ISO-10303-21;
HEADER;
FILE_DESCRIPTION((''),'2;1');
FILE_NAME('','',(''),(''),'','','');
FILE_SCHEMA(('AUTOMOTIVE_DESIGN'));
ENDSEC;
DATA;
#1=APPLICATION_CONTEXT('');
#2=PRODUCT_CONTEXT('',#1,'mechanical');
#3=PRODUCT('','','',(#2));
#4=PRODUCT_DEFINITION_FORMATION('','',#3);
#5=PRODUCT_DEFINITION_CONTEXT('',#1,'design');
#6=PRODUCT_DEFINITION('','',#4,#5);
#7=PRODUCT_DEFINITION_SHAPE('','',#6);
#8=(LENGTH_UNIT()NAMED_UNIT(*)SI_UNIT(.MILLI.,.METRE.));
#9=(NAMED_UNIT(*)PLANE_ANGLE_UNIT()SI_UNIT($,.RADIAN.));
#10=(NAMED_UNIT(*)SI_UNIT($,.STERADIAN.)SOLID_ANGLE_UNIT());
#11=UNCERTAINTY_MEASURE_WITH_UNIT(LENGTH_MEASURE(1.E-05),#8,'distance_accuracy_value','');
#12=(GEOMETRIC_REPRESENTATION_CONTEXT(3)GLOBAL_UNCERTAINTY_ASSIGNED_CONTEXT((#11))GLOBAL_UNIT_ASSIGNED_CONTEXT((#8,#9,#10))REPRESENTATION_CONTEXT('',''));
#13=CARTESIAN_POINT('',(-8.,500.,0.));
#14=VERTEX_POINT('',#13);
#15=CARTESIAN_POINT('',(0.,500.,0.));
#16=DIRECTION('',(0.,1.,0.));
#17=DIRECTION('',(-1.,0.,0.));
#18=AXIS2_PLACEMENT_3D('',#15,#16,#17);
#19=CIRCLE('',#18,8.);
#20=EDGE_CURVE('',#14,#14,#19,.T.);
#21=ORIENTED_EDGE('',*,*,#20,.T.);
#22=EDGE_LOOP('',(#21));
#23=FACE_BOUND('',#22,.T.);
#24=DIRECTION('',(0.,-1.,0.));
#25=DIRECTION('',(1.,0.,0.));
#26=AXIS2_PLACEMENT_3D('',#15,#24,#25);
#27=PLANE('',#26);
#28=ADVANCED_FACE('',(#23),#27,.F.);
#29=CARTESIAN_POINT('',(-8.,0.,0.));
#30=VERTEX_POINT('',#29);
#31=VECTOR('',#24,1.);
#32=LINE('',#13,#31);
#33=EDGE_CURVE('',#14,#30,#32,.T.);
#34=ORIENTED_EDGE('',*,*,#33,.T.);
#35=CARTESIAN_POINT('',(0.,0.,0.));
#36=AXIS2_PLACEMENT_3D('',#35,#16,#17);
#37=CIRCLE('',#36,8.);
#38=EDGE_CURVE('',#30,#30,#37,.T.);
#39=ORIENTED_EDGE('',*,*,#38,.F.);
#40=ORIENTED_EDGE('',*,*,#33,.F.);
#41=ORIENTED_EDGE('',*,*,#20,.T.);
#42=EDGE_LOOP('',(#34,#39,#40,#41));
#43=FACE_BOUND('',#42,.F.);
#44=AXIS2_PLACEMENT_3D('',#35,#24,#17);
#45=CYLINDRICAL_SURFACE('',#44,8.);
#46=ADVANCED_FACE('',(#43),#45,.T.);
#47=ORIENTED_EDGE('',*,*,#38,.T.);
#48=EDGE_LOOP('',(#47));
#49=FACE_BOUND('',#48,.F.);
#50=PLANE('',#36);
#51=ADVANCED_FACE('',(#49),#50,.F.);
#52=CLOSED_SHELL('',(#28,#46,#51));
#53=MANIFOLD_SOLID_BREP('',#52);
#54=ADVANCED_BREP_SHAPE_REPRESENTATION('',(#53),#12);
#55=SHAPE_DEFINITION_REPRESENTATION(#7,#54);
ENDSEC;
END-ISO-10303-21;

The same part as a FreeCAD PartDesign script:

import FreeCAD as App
import Part
import Sketcher

doc = App.newDocument("Part")
body = doc.addObject("PartDesign::Body", "Body")

# Sketch on XZ plane
sketch1 = body.newObject("Sketcher::SketchObject", "Sketch")
sketch1.AttachmentSupport = (doc.getObject("XZ_Plane"), [""])
sketch1.MapMode = "FlatFace"
sketch1.addGeometry(Part.Circle(App.Vector(0, 0, 0), App.Vector(0, 0, 1), 8), False)
sketch1.addConstraint(Sketcher.Constraint("Coincident", 0, 3, -1, 1))
sketch1.addConstraint(Sketcher.Constraint("Diameter", 0, 16.0))
pad1 = body.newObject("PartDesign::Pad", "Pad")
pad1.Profile = sketch1
pad1.Length = 250
pad1.Reversed = True
doc.recompute()

datumplane = body.newObject("PartDesign::Plane", "DatumPlane")
datumplane.AttachmentSupport = (doc.getObject("XZ_Plane"), [""])
datumplane.MapMode = "FlatFace"
datumplane.AttachmentOffset = App.Placement(App.Vector(0, 0, -250), App.Rotation())
mirrored = body.newObject("PartDesign::Mirrored", "Mirrored")
mirrored.TransformMode = "Transform body"
mirrored.MirrorPlane = (datumplane, [""])
body.Tip = mirrored

doc.recompute()
